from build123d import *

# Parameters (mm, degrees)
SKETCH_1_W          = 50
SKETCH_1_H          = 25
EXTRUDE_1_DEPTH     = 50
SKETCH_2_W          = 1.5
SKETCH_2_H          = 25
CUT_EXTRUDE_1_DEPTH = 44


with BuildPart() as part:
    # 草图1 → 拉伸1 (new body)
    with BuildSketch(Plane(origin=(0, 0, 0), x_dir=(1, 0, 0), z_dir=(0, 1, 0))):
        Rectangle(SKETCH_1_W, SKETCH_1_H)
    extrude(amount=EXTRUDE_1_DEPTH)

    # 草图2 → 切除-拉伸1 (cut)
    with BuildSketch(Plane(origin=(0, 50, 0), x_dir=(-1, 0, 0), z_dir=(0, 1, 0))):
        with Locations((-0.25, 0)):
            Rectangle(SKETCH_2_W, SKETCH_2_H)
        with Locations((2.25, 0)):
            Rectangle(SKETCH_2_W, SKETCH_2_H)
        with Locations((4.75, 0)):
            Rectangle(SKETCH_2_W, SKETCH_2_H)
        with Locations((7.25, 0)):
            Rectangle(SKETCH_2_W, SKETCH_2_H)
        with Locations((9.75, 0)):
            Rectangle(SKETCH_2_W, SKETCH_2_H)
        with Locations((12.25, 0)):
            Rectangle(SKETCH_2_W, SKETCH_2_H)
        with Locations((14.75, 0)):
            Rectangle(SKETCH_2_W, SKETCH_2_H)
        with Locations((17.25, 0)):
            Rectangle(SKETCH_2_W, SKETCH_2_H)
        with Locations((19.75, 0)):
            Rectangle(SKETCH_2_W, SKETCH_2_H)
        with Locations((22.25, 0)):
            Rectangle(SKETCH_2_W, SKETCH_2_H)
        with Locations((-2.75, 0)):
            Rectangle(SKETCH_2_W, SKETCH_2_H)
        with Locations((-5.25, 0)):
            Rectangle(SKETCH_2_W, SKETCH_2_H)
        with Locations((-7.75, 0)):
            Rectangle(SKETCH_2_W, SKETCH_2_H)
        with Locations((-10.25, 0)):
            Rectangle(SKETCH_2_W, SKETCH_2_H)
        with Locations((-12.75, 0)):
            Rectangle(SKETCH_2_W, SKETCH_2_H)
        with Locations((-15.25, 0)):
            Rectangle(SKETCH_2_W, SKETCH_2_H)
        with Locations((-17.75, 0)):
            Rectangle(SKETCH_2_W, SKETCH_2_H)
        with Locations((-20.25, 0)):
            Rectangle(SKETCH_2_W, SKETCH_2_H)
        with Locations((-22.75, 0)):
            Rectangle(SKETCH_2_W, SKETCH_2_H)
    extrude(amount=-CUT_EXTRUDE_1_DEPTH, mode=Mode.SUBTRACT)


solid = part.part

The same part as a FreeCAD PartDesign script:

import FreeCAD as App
import Part
import Sketcher

doc = App.newDocument("Part")
body = doc.addObject("PartDesign::Body", "Body")

sketch1 = doc.addObject("Sketcher::SketchObject", "Sketch")
body.addObject(sketch1)
sketch1.AttachmentSupport = (doc.XZ_Plane, [""])
sketch1.MapMode = "FlatFace"
sketch1.addGeometry([
    Part.LineSegment(App.Vector(-25, -12.5, 0), App.Vector(-25, 12.5, 0)),
    Part.LineSegment(App.Vector(-25, 12.5, 0), App.Vector(25, 12.5, 0)),
    Part.LineSegment(App.Vector(25, 12.5, 0), App.Vector(25, -12.5, 0)),
    Part.LineSegment(App.Vector(25, -12.5, 0), App.Vector(-25, -12.5, 0)),
], False)
sketch1.addConstraint([
    Sketcher.Constraint("Coincident", 0, 2, 1, 1),
    Sketcher.Constraint("Coincident", 1, 2, 2, 1),
    Sketcher.Constraint("Coincident", 2, 2, 3, 1),
    Sketcher.Constraint("Coincident", 3, 2, 0, 1),
    Sketcher.Constraint("Vertical", 0),
    Sketcher.Constraint("Horizontal", 1),
    Sketcher.Constraint("Vertical", 2),
    Sketcher.Constraint("Horizontal", 3),
    Sketcher.Constraint("Symmetric", 0, 2, 2, 2, -1, 1),
    Sketcher.Constraint("DistanceX", 1, 1, 1, 2, 50.0),
    Sketcher.Constraint("DistanceY", 0, 1, 0, 2, 25.0),
])
pad1 = doc.addObject("PartDesign::Pad", "Pad")
body.addObject(pad1)
pad1.Profile = sketch1
pad1.Length = 50
pad1.Reversed = True

sketch2 = doc.addObject("Sketcher::SketchObject", "Sketch001")
body.addObject(sketch2)
sketch2.AttachmentSupport = (doc.XZ_Plane, [""])
sketch2.MapMode = "FlatFace"
sketch2.AttachmentOffset = App.Placement(App.Vector(0, 0, -50), App.Rotation())
sketch2.addGeometry([
    Part.LineSegment(App.Vector(1, 12.5, 0), App.Vector(1, -12.5, 0)),
    Part.LineSegment(App.Vector(1, -12.5, 0), App.Vector(-0.5, -12.5, 0)),
    Part.LineSegment(App.Vector(-0.5, -12.5, 0), App.Vector(-0.5, 12.5, 0)),
    Part.LineSegment(App.Vector(-0.5, 12.5, 0), App.Vector(1, 12.5, 0)),
    Part.LineSegment(App.Vector(-1.5, 12.5, 0), App.Vector(-1.5, -12.5, 0)),
    Part.LineSegment(App.Vector(-1.5, -12.5, 0), App.Vector(-3, -12.5, 0)),
    Part.LineSegment(App.Vector(-3, -12.5, 0), App.Vector(-3, 12.5, 0)),
    Part.LineSegment(App.Vector(-3, 12.5, 0), App.Vector(-1.5, 12.5, 0)),
    Part.LineSegment(App.Vector(-4, 12.5, 0), App.Vector(-4, -12.5, 0)),
    Part.LineSegment(App.Vector(-4, -12.5, 0), App.Vector(-5.5, -12.5, 0)),
    Part.LineSegment(App.Vector(-5.5, -12.5, 0), App.Vector(-5.5, 12.5, 0)),
    Part.LineSegment(App.Vector(-5.5, 12.5, 0), App.Vector(-4, 12.5, 0)),
    Part.LineSegment(App.Vector(-6.5, 12.5, 0), App.Vector(-6.5, -12.5, 0)),
    Part.LineSegment(App.Vector(-6.5, -12.5, 0), App.Vector(-8, -12.5, 0)),
    Part.LineSegment(App.Vector(-8, -12.5, 0), App.Vector(-8, 12.5, 0)),
    Part.LineSegment(App.Vector(-8, 12.5, 0), App.Vector(-6.5, 12.5, 0)),
    Part.LineSegment(App.Vector(-9, 12.5, 0), App.Vector(-9, -12.5, 0)),
    Part.LineSegment(App.Vector(-9, -12.5, 0), App.Vector(-10.5, -12.5, 0)),
    Part.LineSegment(App.Vector(-10.5, -12.5, 0), App.Vector(-10.5, 12.5, 0)),
    Part.LineSegment(App.Vector(-10.5, 12.5, 0), App.Vector(-9, 12.5, 0)),
    Part.LineSegment(App.Vector(-11.5, 12.5, 0), App.Vector(-11.5, -12.5, 0)),
    Part.LineSegment(App.Vector(-11.5, -12.5, 0), App.Vector(-13, -12.5, 0)),
    Part.LineSegment(App.Vector(-13, -12.5, 0), App.Vector(-13, 12.5, 0)),
    Part.LineSegment(App.Vector(-13, 12.5, 0), App.Vector(-11.5, 12.5, 0)),
    Part.LineSegment(App.Vector(-14, 12.5, 0), App.Vector(-14, -12.5, 0)),
    Part.LineSegment(App.Vector(-14, -12.5, 0), App.Vector(-15.5, -12.5, 0)),
    Part.LineSegment(App.Vector(-15.5, -12.5, 0), App.Vector(-15.5, 12.5, 0)),
    Part.LineSegment(App.Vector(-15.5, 12.5, 0), App.Vector(-14, 12.5, 0)),
    Part.LineSegment(App.Vector(-16.5, 12.5, 0), App.Vector(-16.5, -12.5, 0)),
    Part.LineSegment(App.Vector(-16.5, -12.5, 0), App.Vector(-18, -12.5, 0)),
    Part.LineSegment(App.Vector(-18, -12.5, 0), App.Vector(-18, 12.5, 0)),
    Part.LineSegment(App.Vector(-18, 12.5, 0), App.Vector(-16.5, 12.5, 0)),
    Part.LineSegment(App.Vector(-19, 12.5, 0), App.Vector(-19, -12.5, 0)),
    Part.LineSegment(App.Vector(-19, -12.5, 0), App.Vector(-20.5, -12.5, 0)),
    Part.LineSegment(App.Vector(-20.5, -12.5, 0), App.Vector(-20.5, 12.5, 0)),
    Part.LineSegment(App.Vector(-20.5, 12.5, 0), App.Vector(-19, 12.5, 0)),
    Part.LineSegment(App.Vector(-21.5, 12.5, 0), App.Vector(-21.5, -12.5, 0)),
    Part.LineSegment(App.Vector(-21.5, -12.5, 0), App.Vector(-23, -12.5, 0)),
    Part.LineSegment(App.Vector(-23, -12.5, 0), App.Vector(-23, 12.5, 0)),
    Part.LineSegment(App.Vector(-23, 12.5, 0), App.Vector(-21.5, 12.5, 0)),
    Part.LineSegment(App.Vector(3.5, 12.5, 0), App.Vector(3.5, -12.5, 0)),
    Part.LineSegment(App.Vector(3.5, -12.5, 0), App.Vector(2, -12.5, 0)),
    Part.LineSegment(App.Vector(2, -12.5, 0), App.Vector(2, 12.5, 0)),
    Part.LineSegment(App.Vector(2, 12.5, 0), App.Vector(3.5, 12.5, 0)),
    Part.LineSegment(App.Vector(6, 12.5, 0), App.Vector(6, -12.5, 0)),
    Part.LineSegment(App.Vector(6, -12.5, 0), App.Vector(4.5, -12.5, 0)),
    Part.LineSegment(App.Vector(4.5, -12.5, 0), App.Vector(4.5, 12.5, 0)),
    Part.LineSegment(App.Vector(4.5, 12.5, 0), App.Vector(6, 12.5, 0)),
    Part.LineSegment(App.Vector(8.5, 12.5, 0), App.Vector(8.5, -12.5, 0)),
    Part.LineSegment(App.Vector(8.5, -12.5, 0), App.Vector(7, -12.5, 0)),
    Part.LineSegment(App.Vector(7, -12.5, 0), App.Vector(7, 12.5, 0)),
    Part.LineSegment(App.Vector(7, 12.5, 0), App.Vector(8.5, 12.5, 0)),
    Part.LineSegment(App.Vector(11, 12.5, 0), App.Vector(11, -12.5, 0)),
    Part.LineSegment(App.Vector(11, -12.5, 0), App.Vector(9.5, -12.5, 0)),
    Part.LineSegment(App.Vector(9.5, -12.5, 0), App.Vector(9.5, 12.5, 0)),
    Part.LineSegment(App.Vector(9.5, 12.5, 0), App.Vector(11, 12.5, 0)),
    Part.LineSegment(App.Vector(13.5, 12.5, 0), App.Vector(13.5, -12.5, 0)),
    Part.LineSegment(App.Vector(13.5, -12.5, 0), App.Vector(12, -12.5, 0)),
    Part.LineSegment(App.Vector(12, -12.5, 0), App.Vector(12, 12.5, 0)),
    Part.LineSegment(App.Vector(12, 12.5, 0), App.Vector(13.5, 12.5, 0)),
    Part.LineSegment(App.Vector(16, 12.5, 0), App.Vector(16, -12.5, 0)),
    Part.LineSegment(App.Vector(16, -12.5, 0), App.Vector(14.5, -12.5, 0)),
    Part.LineSegment(App.Vector(14.5, -12.5, 0), App.Vector(14.5, 12.5, 0)),
    Part.LineSegment(App.Vector(14.5, 12.5, 0), App.Vector(16, 12.5, 0)),
    Part.LineSegment(App.Vector(18.5, 12.5, 0), App.Vector(18.5, -12.5, 0)),
    Part.LineSegment(App.Vector(18.5, -12.5, 0), App.Vector(17, -12.5, 0)),
    Part.LineSegment(App.Vector(17, -12.5, 0), App.Vector(17, 12.5, 0)),
    Part.LineSegment(App.Vector(17, 12.5, 0), App.Vector(18.5, 12.5, 0)),
    Part.LineSegment(App.Vector(21, 12.5, 0), App.Vector(21, -12.5, 0)),
    Part.LineSegment(App.Vector(21, -12.5, 0), App.Vector(19.5, -12.5, 0)),
    Part.LineSegment(App.Vector(19.5, -12.5, 0), App.Vector(19.5, 12.5, 0)),
    Part.LineSegment(App.Vector(19.5, 12.5, 0), App.Vector(21, 12.5, 0)),
    Part.LineSegment(App.Vector(23.5, 12.5, 0), App.Vector(23.5, -12.5, 0)),
    Part.LineSegment(App.Vector(23.5, -12.5, 0), App.Vector(22, -12.5, 0)),
    Part.LineSegment(App.Vector(22, -12.5, 0), App.Vector(22, 12.5, 0)),
    Part.LineSegment(App.Vector(22, 12.5, 0), App.Vector(23.5, 12.5, 0)),
], False)
sketch2.addConstraint([
    Sketcher.Constraint("Coincident", 0, 2, 1, 1),
    Sketcher.Constraint("Coincident", 1, 2, 2, 1),
    Sketcher.Constraint("Coincident", 2, 2, 3, 1),
    Sketcher.Constraint("Coincident", 3, 2, 0, 1),
    Sketcher.Constraint("Coincident", 4, 2, 5, 1),
    Sketcher.Constraint("Coincident", 5, 2, 6, 1),
    Sketcher.Constraint("Coincident", 6, 2, 7, 1),
    Sketcher.Constraint("Coincident", 7, 2, 4, 1),
    Sketcher.Constraint("Coincident", 8, 2, 9, 1),
    Sketcher.Constraint("Coincident", 9, 2, 10, 1),
    Sketcher.Constraint("Coincident", 10, 2, 11, 1),
    Sketcher.Constraint("Coincident", 11, 2, 8, 1),
    Sketcher.Constraint("Coincident", 12, 2, 13, 1),
    Sketcher.Constraint("Coincident", 13, 2, 14, 1),
    Sketcher.Constraint("Coincident", 14, 2, 15, 1),
    Sketcher.Constraint("Coincident", 15, 2, 12, 1),
    Sketcher.Constraint("Coincident", 16, 2, 17, 1),
    Sketcher.Constraint("Coincident", 17, 2, 18, 1),
    Sketcher.Constraint("Coincident", 18, 2, 19, 1),
    Sketcher.Constraint("Coincident", 19, 2, 16, 1),
    Sketcher.Constraint("Coincident", 20, 2, 21, 1),
    Sketcher.Constraint("Coincident", 21, 2, 22, 1),
    Sketcher.Constraint("Coincident", 22, 2, 23, 1),
    Sketcher.Constraint("Coincident", 23, 2, 20, 1),
    Sketcher.Constraint("Coincident", 24, 2, 25, 1),
    Sketcher.Constraint("Coincident", 25, 2, 26, 1),
    Sketcher.Constraint("Coincident", 26, 2, 27, 1),
    Sketcher.Constraint("Coincident", 27, 2, 24, 1),
    Sketcher.Constraint("Coincident", 28, 2, 29, 1),
    Sketcher.Constraint("Coincident", 29, 2, 30, 1),
    Sketcher.Constraint("Coincident", 30, 2, 31, 1),
    Sketcher.Constraint("Coincident", 31, 2, 28, 1),
    Sketcher.Constraint("Coincident", 32, 2, 33, 1),
    Sketcher.Constraint("Coincident", 33, 2, 34, 1),
    Sketcher.Constraint("Coincident", 34, 2, 35, 1),
    Sketcher.Constraint("Coincident", 35, 2, 32, 1),
    Sketcher.Constraint("Coincident", 36, 2, 37, 1),
    Sketcher.Constraint("Coincident", 37, 2, 38, 1),
    Sketcher.Constraint("Coincident", 38, 2, 39, 1),
    Sketcher.Constraint("Coincident", 39, 2, 36, 1),
    Sketcher.Constraint("Coincident", 40, 2, 41, 1),
    Sketcher.Constraint("Coincident", 41, 2, 42, 1),
    Sketcher.Constraint("Coincident", 42, 2, 43, 1),
    Sketcher.Constraint("Coincident", 43, 2, 40, 1),
    Sketcher.Constraint("Coincident", 44, 2, 45, 1),
    Sketcher.Constraint("Coincident", 45, 2, 46, 1),
    Sketcher.Constraint("Coincident", 46, 2, 47, 1),
    Sketcher.Constraint("Coincident", 47, 2, 44, 1),
    Sketcher.Constraint("Coincident", 48, 2, 49, 1),
    Sketcher.Constraint("Coincident", 49, 2, 50, 1),
    Sketcher.Constraint("Coincident", 50, 2, 51, 1),
    Sketcher.Constraint("Coincident", 51, 2, 48, 1),
    Sketcher.Constraint("Coincident", 52, 2, 53, 1),
    Sketcher.Constraint("Coincident", 53, 2, 54, 1),
    Sketcher.Constraint("Coincident", 54, 2, 55, 1),
    Sketcher.Constraint("Coincident", 55, 2, 52, 1),
    Sketcher.Constraint("Coincident", 56, 2, 57, 1),
    Sketcher.Constraint("Coincident", 57, 2, 58, 1),
    Sketcher.Constraint("Coincident", 58, 2, 59, 1),
    Sketcher.Constraint("Coincident", 59, 2, 56, 1),
    Sketcher.Constraint("Coincident", 60, 2, 61, 1),
    Sketcher.Constraint("Coincident", 61, 2, 62, 1),
    Sketcher.Constraint("Coincident", 62, 2, 63, 1),
    Sketcher.Constraint("Coincident", 63, 2, 60, 1),
    Sketcher.Constraint("Coincident", 64, 2, 65, 1),
    Sketcher.Constraint("Coincident", 65, 2, 66, 1),
    Sketcher.Constraint("Coincident", 66, 2, 67, 1),
    Sketcher.Constraint("Coincident", 67, 2, 64, 1),
    Sketcher.Constraint("Coincident", 68, 2, 69, 1),
    Sketcher.Constraint("Coincident", 69, 2, 70, 1),
    Sketcher.Constraint("Coincident", 70, 2, 71, 1),
    Sketcher.Constraint("Coincident", 71, 2, 68, 1),
    Sketcher.Constraint("Coincident", 72, 2, 73, 1),
    Sketcher.Constraint("Coincident", 73, 2, 74, 1),
    Sketcher.Constraint("Coincident", 74, 2, 75, 1),
    Sketcher.Constraint("Coincident", 75, 2, 72, 1),
    Sketcher.Constraint("Vertical", 0),
    Sketcher.Constraint("Horizontal", 1),
    Sketcher.Constraint("Vertical", 2),
    Sketcher.Constraint("Horizontal", 3),
    Sketcher.Constraint("Vertical", 4),
    Sketcher.Constraint("Horizontal", 5),
    Sketcher.Constraint("Vertical", 6),
    Sketcher.Constraint("Horizontal", 7),
    Sketcher.Constraint("Vertical", 8),
    Sketcher.Constraint("Horizontal", 9),
    Sketcher.Constraint("Vertical", 10),
    Sketcher.Constraint("Horizontal", 11),
    Sketcher.Constraint("Vertical", 12),
    Sketcher.Constraint("Horizontal", 13),
    Sketcher.Constraint("Vertical", 14),
    Sketcher.Constraint("Horizontal", 15),
    Sketcher.Constraint("Vertical", 16),
    Sketcher.Constraint("Horizontal", 17),
    Sketcher.Constraint("Vertical", 18),
    Sketcher.Constraint("Horizontal", 19),
    Sketcher.Constraint("Vertical", 20),
    Sketcher.Constraint("Horizontal", 21),
    Sketcher.Constraint("Vertical", 22),
    Sketcher.Constraint("Horizontal", 23),
    Sketcher.Constraint("Vertical", 24),
    Sketcher.Constraint("Horizontal", 25),
    Sketcher.Constraint("Vertical", 26),
    Sketcher.Constraint("Horizontal", 27),
    Sketcher.Constraint("Vertical", 28),
    Sketcher.Constraint("Horizontal", 29),
    Sketcher.Constraint("Vertical", 30),
    Sketcher.Constraint("Horizontal", 31),
    Sketcher.Constraint("Vertical", 32),
    Sketcher.Constraint("Horizontal", 33),
    Sketcher.Constraint("Vertical", 34),
    Sketcher.Constraint("Horizontal", 35),
    Sketcher.Constraint("Vertical", 36),
    Sketcher.Constraint("Horizontal", 37),
    Sketcher.Constraint("Vertical", 38),
    Sketcher.Constraint("Horizontal", 39),
    Sketcher.Constraint("Vertical", 40),
    Sketcher.Constraint("Horizontal", 41),
    Sketcher.Constraint("Vertical", 42),
    Sketcher.Constraint("Horizontal", 43),
    Sketcher.Constraint("Vertical", 44),
    Sketcher.Constraint("Horizontal", 45),
    Sketcher.Constraint("Vertical", 46),
    Sketcher.Constraint("Horizontal", 47),
    Sketcher.Constraint("Vertical", 48),
    Sketcher.Constraint("Horizontal", 49),
    Sketcher.Constraint("Vertical", 50),
    Sketcher.Constraint("Horizontal", 51),
    Sketcher.Constraint("Vertical", 52),
    Sketcher.Constraint("Horizontal", 53),
    Sketcher.Constraint("Vertical", 54),
    Sketcher.Constraint("Horizontal", 55),
    Sketcher.Constraint("Vertical", 56),
    Sketcher.Constraint("Horizontal", 57),
    Sketcher.Constraint("Vertical", 58),
    Sketcher.Constraint("Horizontal", 59),
    Sketcher.Constraint("Vertical", 60),
    Sketcher.Constraint("Horizontal", 61),
    Sketcher.Constraint("Vertical", 62),
    Sketcher.Constraint("Horizontal", 63),
    Sketcher.Constraint("Vertical", 64),
    Sketcher.Constraint("Horizontal", 65),
    Sketcher.Constraint("Vertical", 66),
    Sketcher.Constraint("Horizontal", 67),
    Sketcher.Constraint("Vertical", 68),
    Sketcher.Constraint("Horizontal", 69),
    Sketcher.Constraint("Vertical", 70),
    Sketcher.Constraint("Horizontal", 71),
    Sketcher.Constraint("Vertical", 72),
    Sketcher.Constraint("Horizontal", 73),
    Sketcher.Constraint("Vertical", 74),
    Sketcher.Constraint("Horizontal", 75),
    Sketcher.Constraint("Horizontal", 1, 2, 4, 2),
    Sketcher.Constraint("Horizontal", 3, 2, 6, 2),
    Sketcher.Constraint("Horizontal", 5, 2, 8, 2),
    Sketcher.Constraint("Horizontal", 7, 2, 10, 2),
    Sketcher.Constraint("Horizontal", 9, 2, 12, 2),
    Sketcher.Constraint("Horizontal", 11, 2, 14, 2),
    Sketcher.Constraint("Horizontal", 13, 2, 16, 2),
    Sketcher.Constraint("Horizontal", 15, 2, 18, 2),
    Sketcher.Constraint("Horizontal", 17, 2, 20, 2),
    Sketcher.Constraint("Horizontal", 19, 2, 22, 2),
    Sketcher.Constraint("Horizontal", 21, 2, 24, 2),
    Sketcher.Constraint("Horizontal", 23, 2, 26, 2),
    Sketcher.Constraint("Horizontal", 25, 2, 28, 2),
    Sketcher.Constraint("Horizontal", 27, 2, 30, 2),
    Sketcher.Constraint("Horizontal", 29, 2, 32, 2),
    Sketcher.Constraint("Horizontal", 31, 2, 34, 2),
    Sketcher.Constraint("Horizontal", 33, 2, 36, 2),
    Sketcher.Constraint("Horizontal", 35, 2, 38, 2),
    Sketcher.Constraint("Horizontal", 37, 2, 40, 2),
    Sketcher.Constraint("Horizontal", 39, 2, 42, 2),
    Sketcher.Constraint("Horizontal", 41, 2, 44, 2),
    Sketcher.Constraint("Horizontal", 43, 2, 46, 2),
    Sketcher.Constraint("Horizontal", 45, 2, 48, 2),
    Sketcher.Constraint("Horizontal", 47, 2, 50, 2),
    Sketcher.Constraint("Horizontal", 49, 2, 52, 2),
    Sketcher.Constraint("Horizontal", 51, 2, 54, 2),
    Sketcher.Constraint("Horizontal", 53, 2, 56, 2),
    Sketcher.Constraint("Horizontal", 55, 2, 58, 2),
    Sketcher.Constraint("Horizontal", 57, 2, 60, 2),
    Sketcher.Constraint("Horizontal", 59, 2, 62, 2),
    Sketcher.Constraint("Horizontal", 61, 2, 64, 2),
    Sketcher.Constraint("Horizontal", 63, 2, 66, 2),
    Sketcher.Constraint("Horizontal", 65, 2, 68, 2),
    Sketcher.Constraint("Horizontal", 67, 2, 70, 2),
    Sketcher.Constraint("Horizontal", 69, 2, 72, 2),
    Sketcher.Constraint("Horizontal", 71, 2, 74, 2),
    Sketcher.Constraint("Equal", 3, 5),
    Sketcher.Constraint("Equal", 7, 9),
    Sketcher.Constraint("Equal", 11, 13),
    Sketcher.Constraint("Equal", 15, 17),
    Sketcher.Constraint("Equal", 19, 21),
    Sketcher.Constraint("Equal", 23, 25),
    Sketcher.Constraint("Equal", 27, 29),
    Sketcher.Constraint("Equal", 31, 33),
    Sketcher.Constraint("Equal", 35, 37),
    Sketcher.Constraint("Equal", 39, 41),
    Sketcher.Constraint("Equal", 43, 45),
    Sketcher.Constraint("Equal", 47, 49),
    Sketcher.Constraint("Equal", 51, 53),
    Sketcher.Constraint("Equal", 55, 57),
    Sketcher.Constraint("Equal", 59, 61),
    Sketcher.Constraint("Equal", 63, 65),
    Sketcher.Constraint("Equal", 67, 69),
    Sketcher.Constraint("Equal", 71, 73),
    Sketcher.Constraint("DistanceY", 0, 2, 0, 1, 25.0),
    Sketcher.Constraint("DistanceX", 1, 2, 1, 1, 1.5),
    Sketcher.Constraint("DistanceX", -1, 1, 0, 2, 1.0),
    Sketcher.Constraint("DistanceX", 5, 2, -1, 1, 3.0),
    Sketcher.Constraint("DistanceX", 8, 2, -1, 1, 4.0),
    Sketcher.Constraint("DistanceX", 13, 2, -1, 1, 8.0),
    Sketcher.Constraint("DistanceX", 16, 2, -1, 1, 9.0),
    Sketcher.Constraint("DistanceX", 21, 2, -1, 1, 13.0),
    Sketcher.Constraint("DistanceX", 24, 2, -1, 1, 14.0),
    Sketcher.Constraint("DistanceX", 29, 2, -1, 1, 18.0),
    Sketcher.Constraint("DistanceX", 32, 2, -1, 1, 19.0),
    Sketcher.Constraint("DistanceX", 37, 2, -1, 1, 23.0),
    Sketcher.Constraint("DistanceX", -1, 1, 41, 2, 2.0),
    Sketcher.Constraint("DistanceX", -1, 1, 44, 2, 6.0),
    Sketcher.Constraint("DistanceX", -1, 1, 49, 2, 7.0),
    Sketcher.Constraint("DistanceX", -1, 1, 52, 2, 11.0),
    Sketcher.Constraint("DistanceX", -1, 1, 57, 2, 12.0),
    Sketcher.Constraint("DistanceX", -1, 1, 60, 2, 16.0),
    Sketcher.Constraint("DistanceX", -1, 1, 65, 2, 17.0),
    Sketcher.Constraint("DistanceX", -1, 1, 68, 2, 21.0),
    Sketcher.Constraint("DistanceX", -1, 1, 73, 2, 22.0),
    Sketcher.Constraint("DistanceY", 0, 2, -1, 1, 12.5),
])
pocket1 = doc.addObject("PartDesign::Pocket", "Pocket")
body.addObject(pocket1)
pocket1.Profile = sketch2
pocket1.Length = 44
pocket1.Reversed = True

doc.recompute()
